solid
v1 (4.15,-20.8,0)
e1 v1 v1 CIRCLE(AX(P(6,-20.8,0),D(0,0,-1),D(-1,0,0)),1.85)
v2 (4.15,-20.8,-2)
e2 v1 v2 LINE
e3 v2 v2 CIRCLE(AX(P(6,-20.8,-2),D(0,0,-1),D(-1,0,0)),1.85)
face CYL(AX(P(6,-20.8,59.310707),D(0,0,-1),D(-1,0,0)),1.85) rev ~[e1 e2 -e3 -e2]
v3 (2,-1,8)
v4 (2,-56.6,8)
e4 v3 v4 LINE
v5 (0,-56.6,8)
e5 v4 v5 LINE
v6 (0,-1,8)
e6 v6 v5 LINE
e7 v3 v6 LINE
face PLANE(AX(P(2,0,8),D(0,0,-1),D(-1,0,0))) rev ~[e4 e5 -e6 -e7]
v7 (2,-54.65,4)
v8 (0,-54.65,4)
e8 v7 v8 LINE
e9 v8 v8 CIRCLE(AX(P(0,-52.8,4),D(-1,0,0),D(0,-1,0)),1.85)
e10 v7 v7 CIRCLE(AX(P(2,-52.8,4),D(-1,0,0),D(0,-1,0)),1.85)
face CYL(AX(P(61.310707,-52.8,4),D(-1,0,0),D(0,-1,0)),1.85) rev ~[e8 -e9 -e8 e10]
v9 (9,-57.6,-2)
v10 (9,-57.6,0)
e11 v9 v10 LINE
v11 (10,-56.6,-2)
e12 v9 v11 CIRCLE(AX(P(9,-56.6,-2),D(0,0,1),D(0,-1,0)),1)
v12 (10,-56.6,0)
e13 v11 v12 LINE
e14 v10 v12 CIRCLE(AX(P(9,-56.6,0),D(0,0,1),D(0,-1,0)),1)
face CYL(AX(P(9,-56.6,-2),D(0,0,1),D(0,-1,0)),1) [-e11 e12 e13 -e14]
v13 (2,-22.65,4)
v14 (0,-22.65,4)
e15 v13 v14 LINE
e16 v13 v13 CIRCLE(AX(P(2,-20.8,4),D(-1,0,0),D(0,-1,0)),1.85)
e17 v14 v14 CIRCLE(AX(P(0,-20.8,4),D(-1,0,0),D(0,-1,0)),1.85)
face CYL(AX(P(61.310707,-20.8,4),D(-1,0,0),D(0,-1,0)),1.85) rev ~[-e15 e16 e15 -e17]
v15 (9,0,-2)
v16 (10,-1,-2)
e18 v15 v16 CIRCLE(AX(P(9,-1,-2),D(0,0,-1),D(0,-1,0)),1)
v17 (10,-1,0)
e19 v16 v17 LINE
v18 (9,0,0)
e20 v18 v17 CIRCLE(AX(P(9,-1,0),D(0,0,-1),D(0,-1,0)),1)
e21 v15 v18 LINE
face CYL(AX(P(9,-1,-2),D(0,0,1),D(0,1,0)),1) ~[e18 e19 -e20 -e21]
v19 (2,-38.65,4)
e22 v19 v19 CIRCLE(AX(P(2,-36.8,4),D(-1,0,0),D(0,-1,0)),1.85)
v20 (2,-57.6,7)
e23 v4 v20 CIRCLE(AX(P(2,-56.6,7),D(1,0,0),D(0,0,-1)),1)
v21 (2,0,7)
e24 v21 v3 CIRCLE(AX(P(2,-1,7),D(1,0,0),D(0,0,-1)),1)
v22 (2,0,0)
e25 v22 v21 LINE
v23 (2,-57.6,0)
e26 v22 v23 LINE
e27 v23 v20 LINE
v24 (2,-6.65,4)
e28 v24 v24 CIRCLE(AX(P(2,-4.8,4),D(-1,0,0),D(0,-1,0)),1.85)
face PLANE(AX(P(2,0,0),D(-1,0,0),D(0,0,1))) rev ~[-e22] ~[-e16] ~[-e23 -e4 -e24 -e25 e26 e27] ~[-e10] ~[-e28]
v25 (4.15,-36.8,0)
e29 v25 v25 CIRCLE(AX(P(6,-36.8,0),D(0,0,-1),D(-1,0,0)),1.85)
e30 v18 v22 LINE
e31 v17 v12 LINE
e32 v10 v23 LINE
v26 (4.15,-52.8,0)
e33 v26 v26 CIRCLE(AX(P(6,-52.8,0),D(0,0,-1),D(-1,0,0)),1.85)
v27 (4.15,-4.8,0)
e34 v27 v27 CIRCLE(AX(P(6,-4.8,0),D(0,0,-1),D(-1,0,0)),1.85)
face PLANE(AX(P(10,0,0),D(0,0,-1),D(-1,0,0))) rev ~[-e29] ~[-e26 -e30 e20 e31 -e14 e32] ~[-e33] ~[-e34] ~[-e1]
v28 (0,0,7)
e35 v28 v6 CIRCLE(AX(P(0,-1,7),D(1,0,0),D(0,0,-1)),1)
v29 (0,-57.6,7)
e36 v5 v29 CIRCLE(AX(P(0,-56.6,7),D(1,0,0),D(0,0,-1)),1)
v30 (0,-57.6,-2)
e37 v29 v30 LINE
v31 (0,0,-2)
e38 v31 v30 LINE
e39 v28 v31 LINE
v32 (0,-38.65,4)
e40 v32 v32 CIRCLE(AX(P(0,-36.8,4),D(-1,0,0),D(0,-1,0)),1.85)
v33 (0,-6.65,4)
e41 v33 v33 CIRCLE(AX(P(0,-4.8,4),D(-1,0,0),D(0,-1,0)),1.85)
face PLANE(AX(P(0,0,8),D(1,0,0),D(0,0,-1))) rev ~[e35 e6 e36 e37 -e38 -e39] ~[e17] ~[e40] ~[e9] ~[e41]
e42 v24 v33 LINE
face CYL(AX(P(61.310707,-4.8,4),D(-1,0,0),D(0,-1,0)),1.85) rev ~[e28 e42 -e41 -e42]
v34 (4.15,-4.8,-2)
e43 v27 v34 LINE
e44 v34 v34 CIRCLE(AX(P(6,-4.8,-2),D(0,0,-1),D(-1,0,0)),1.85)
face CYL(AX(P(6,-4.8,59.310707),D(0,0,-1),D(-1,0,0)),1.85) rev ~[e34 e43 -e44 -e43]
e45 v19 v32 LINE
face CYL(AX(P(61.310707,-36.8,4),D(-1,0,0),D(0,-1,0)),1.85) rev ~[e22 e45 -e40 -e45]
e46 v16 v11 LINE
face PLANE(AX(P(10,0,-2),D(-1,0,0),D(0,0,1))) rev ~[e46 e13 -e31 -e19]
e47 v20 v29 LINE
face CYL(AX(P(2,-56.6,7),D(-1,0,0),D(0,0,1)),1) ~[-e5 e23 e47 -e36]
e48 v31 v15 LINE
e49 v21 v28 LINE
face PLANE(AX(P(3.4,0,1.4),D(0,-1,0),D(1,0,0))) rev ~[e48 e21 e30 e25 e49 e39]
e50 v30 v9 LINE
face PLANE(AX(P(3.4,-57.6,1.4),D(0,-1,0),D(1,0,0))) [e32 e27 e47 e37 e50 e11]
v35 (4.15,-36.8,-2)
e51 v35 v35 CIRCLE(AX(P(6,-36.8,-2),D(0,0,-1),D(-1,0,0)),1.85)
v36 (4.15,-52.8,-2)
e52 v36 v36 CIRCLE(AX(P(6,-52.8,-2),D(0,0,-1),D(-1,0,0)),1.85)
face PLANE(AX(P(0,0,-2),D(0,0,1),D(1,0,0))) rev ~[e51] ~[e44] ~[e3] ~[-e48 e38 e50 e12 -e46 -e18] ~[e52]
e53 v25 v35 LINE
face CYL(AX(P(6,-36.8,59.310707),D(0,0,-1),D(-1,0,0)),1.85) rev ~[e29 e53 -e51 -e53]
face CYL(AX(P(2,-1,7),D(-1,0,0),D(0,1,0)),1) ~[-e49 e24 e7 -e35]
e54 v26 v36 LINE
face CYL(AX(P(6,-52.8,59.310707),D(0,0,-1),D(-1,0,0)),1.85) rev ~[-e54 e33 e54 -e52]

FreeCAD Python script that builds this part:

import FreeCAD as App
import Part
import Sketcher
from FreeCAD import Vector


def edges_at(feature, points):
    """Names of the edges that pass closest to the given points."""
    edges = feature.Shape.Edges
    near = lambda p: min(range(len(edges)), key=lambda i: edges[i].distToShape(Part.Vertex(*p))[0])
    return sorted({f"Edge{near(p) + 1}" for p in points})


def add_polygon(sketch, points):
    """Adds a closed chain of lines whose ends are joined by coincident constraints."""
    first, n = sketch.GeometryCount, len(points)
    for a, b in zip(points, points[1:] + points[:1]):
        sketch.addGeometry(Part.LineSegment(App.Vector(*a, 0), App.Vector(*b, 0)), False)
    for i in range(n):
        sketch.addConstraint(Sketcher.Constraint("Coincident", first + i, 2, first + (i + 1) % n, 1))

doc = App.newDocument("Part")
params = doc.addObject("Spreadsheet::Sheet", "Params")
for row, (alias, value) in enumerate([
    ("sketch1_width", "2 mm"),
    ("sketch1_width2", "10 mm"),
    ("pad1_length", "57.6 mm"),
    ("fillet_radius", "1 mm"),
    ("fillet2_radius", "1 mm"),
    ("fillet3_radius", "1 mm"),
    ("fillet4_radius", "1 mm"),
    ("sketch2_diameter", "3.7 mm"),
    ("hole_diameter", "3.7 mm"),
    ("sketch3_diameter", "3.7 mm"),
    ("hole2_diameter", "3.7 mm"),
], start=1):
    params.set(f"A{row}", alias)
    params.set(f"B{row}", "=" + value)
    params.setAlias(f"B{row}", alias)

body = doc.addObject("PartDesign::Body", "Body")

sketch1 = doc.addObject("Sketcher::SketchObject", "Sketch")
body.addObject(sketch1)
sketch1.AttachmentSupport = (doc.XZ_Plane, [""])
sketch1.MapMode = "FlatFace"
add_polygon(sketch1, [(2, 8), (0, 8), (0, -2), (10, -2), (10, 0), (2, 0)])
sketch1.addConstraint([
    Sketcher.Constraint("Horizontal", 0),
    Sketcher.Constraint("Vertical", 1),
    Sketcher.Constraint("Horizontal", 2),
    Sketcher.Constraint("Vertical", 3),
    Sketcher.Constraint("Horizontal", 4),
    Sketcher.Constraint("Vertical", 5),
    Sketcher.Constraint("PointOnObject", 0, 2, -2),
    Sketcher.Constraint("PointOnObject", 3, 2, -1),
    Sketcher.Constraint("Equal", 2, 1),
    Sketcher.Constraint("Equal", 0, 3),
    Sketcher.Constraint("DistanceX", 0, 2, 0, 1, 2.0),
    Sketcher.Constraint("DistanceX", 2, 1, 2, 2, 10.0),
])
sketch1.setExpression("Constraints[16]", "Params.sketch1_width")
sketch1.setExpression("Constraints[17]", "Params.sketch1_width2")
pad1 = doc.addObject("PartDesign::Pad", "Pad")
body.addObject(pad1)
pad1.Profile = sketch1
pad1.setExpression("Length", "Params.pad1_length")
doc.recompute()

fillet = doc.addObject("PartDesign::Fillet", "Fillet")
body.addObject(fillet)
fillet.Base = (pad1, edges_at(pad1, [(1, -57.6, 8)]))
fillet.setExpression("Radius", "Params.fillet_radius")
doc.recompute()

fillet2 = doc.addObject("PartDesign::Fillet", "Fillet001")
body.addObject(fillet2)
fillet2.Base = (fillet, edges_at(fillet, [(10, -57.6, -1)]))
fillet2.setExpression("Radius", "Params.fillet2_radius")
doc.recompute()

fillet3 = doc.addObject("PartDesign::Fillet", "Fillet002")
body.addObject(fillet3)
fillet3.Base = (fillet2, edges_at(fillet2, [(1, 0, 8)]))
fillet3.setExpression("Radius", "Params.fillet3_radius")
doc.recompute()

fillet4 = doc.addObject("PartDesign::Fillet", "Fillet003")
body.addObject(fillet4)
fillet4.Base = (fillet3, edges_at(fillet3, [(10, 0, -1)]))
fillet4.setExpression("Radius", "Params.fillet4_radius")

sketch2 = doc.addObject("Sketcher::SketchObject", "Sketch001")
body.addObject(sketch2)
sketch2.AttachmentSupport = (doc.XY_Plane, [""])
sketch2.MapMode = "FlatFace"
sketch2.addGeometry([
    Part.Circle(Vector(6, -52.8, 0), Vector(0, 0, 1), 1.85),
    Part.Circle(Vector(6, -36.8, 0), Vector(0, 0, 1), 1.85),
    Part.Circle(Vector(6, -20.8, 0), Vector(0, 0, 1), 1.85),
    Part.Circle(Vector(6, -4.8, 0), Vector(0, 0, 1), 1.85),
], False)
sketch2.addConstraint([
    Sketcher.Constraint("Equal", 0, 1),
    Sketcher.Constraint("Equal", 1, 2),
    Sketcher.Constraint("Equal", 2, 3),
    Sketcher.Constraint("Vertical", 0, 3, 1, 3),
    Sketcher.Constraint("Vertical", 1, 3, 2, 3),
    Sketcher.Constraint("Vertical", 2, 3, 3, 3),
    Sketcher.Constraint("Diameter", 0, 3.7),
    Sketcher.Constraint("DistanceX", -1, 1, 0, 3, 6.0),
    Sketcher.Constraint("DistanceY", 0, 3, 1, 3, 16.0),
    Sketcher.Constraint("DistanceY", 1, 3, 2, 3, 16.0),
    Sketcher.Constraint("DistanceY", 2, 3, 3, 3, 16.0),
    Sketcher.Constraint("DistanceY", 0, 3, -1, 1, 52.8),
])
sketch2.setExpression("Constraints[6]", "Params.sketch2_diameter")
doc.recompute()
hole = doc.addObject("PartDesign::Hole", "Hole")
body.addObject(hole)
hole.Profile = sketch2
hole.ThreadType = "None"
hole.setExpression("Diameter", "Params.hole_diameter")
hole.DepthType = "ThroughAll"

sketch3 = doc.addObject("Sketcher::SketchObject", "Sketch002")
body.addObject(sketch3)
sketch3.AttachmentSupport = (doc.YZ_Plane, [""])
sketch3.MapMode = "FlatFace"
sketch3.AttachmentOffset = App.Placement(Vector(0, 0, 2), App.Rotation())
sketch3.addGeometry([
    Part.Circle(Vector(-52.8, 4, 0), Vector(0, 0, 1), 1.85),
    Part.Circle(Vector(-36.8, 4, 0), Vector(0, 0, 1), 1.85),
    Part.Circle(Vector(-20.8, 4, 0), Vector(0, 0, 1), 1.85),
    Part.Circle(Vector(-4.8, 4, 0), Vector(0, 0, 1), 1.85),
], False)
sketch3.addConstraint([
    Sketcher.Constraint("Equal", 0, 1),
    Sketcher.Constraint("Equal", 1, 2),
    Sketcher.Constraint("Equal", 2, 3),
    Sketcher.Constraint("Horizontal", 0, 3, 1, 3),
    Sketcher.Constraint("Horizontal", 1, 3, 2, 3),
    Sketcher.Constraint("Horizontal", 2, 3, 3, 3),
    Sketcher.Constraint("Diameter", 0, 3.7),
    Sketcher.Constraint("DistanceY", -1, 1, 0, 3, 4.0),
    Sketcher.Constraint("DistanceX", 0, 3, 1, 3, 16.0),
    Sketcher.Constraint("DistanceX", 1, 3, 2, 3, 16.0),
    Sketcher.Constraint("DistanceX", 2, 3, 3, 3, 16.0),
    Sketcher.Constraint("DistanceX", 0, 3, -1, 1, 52.8),
])
sketch3.setExpression("Constraints[6]", "Params.sketch3_diameter")
doc.recompute()
hole2 = doc.addObject("PartDesign::Hole", "Hole001")
body.addObject(hole2)
hole2.Profile = sketch3
hole2.ThreadType = "None"
hole2.setExpression("Diameter", "Params.hole2_diameter")
hole2.DepthType = "ThroughAll"

doc.recompute()
